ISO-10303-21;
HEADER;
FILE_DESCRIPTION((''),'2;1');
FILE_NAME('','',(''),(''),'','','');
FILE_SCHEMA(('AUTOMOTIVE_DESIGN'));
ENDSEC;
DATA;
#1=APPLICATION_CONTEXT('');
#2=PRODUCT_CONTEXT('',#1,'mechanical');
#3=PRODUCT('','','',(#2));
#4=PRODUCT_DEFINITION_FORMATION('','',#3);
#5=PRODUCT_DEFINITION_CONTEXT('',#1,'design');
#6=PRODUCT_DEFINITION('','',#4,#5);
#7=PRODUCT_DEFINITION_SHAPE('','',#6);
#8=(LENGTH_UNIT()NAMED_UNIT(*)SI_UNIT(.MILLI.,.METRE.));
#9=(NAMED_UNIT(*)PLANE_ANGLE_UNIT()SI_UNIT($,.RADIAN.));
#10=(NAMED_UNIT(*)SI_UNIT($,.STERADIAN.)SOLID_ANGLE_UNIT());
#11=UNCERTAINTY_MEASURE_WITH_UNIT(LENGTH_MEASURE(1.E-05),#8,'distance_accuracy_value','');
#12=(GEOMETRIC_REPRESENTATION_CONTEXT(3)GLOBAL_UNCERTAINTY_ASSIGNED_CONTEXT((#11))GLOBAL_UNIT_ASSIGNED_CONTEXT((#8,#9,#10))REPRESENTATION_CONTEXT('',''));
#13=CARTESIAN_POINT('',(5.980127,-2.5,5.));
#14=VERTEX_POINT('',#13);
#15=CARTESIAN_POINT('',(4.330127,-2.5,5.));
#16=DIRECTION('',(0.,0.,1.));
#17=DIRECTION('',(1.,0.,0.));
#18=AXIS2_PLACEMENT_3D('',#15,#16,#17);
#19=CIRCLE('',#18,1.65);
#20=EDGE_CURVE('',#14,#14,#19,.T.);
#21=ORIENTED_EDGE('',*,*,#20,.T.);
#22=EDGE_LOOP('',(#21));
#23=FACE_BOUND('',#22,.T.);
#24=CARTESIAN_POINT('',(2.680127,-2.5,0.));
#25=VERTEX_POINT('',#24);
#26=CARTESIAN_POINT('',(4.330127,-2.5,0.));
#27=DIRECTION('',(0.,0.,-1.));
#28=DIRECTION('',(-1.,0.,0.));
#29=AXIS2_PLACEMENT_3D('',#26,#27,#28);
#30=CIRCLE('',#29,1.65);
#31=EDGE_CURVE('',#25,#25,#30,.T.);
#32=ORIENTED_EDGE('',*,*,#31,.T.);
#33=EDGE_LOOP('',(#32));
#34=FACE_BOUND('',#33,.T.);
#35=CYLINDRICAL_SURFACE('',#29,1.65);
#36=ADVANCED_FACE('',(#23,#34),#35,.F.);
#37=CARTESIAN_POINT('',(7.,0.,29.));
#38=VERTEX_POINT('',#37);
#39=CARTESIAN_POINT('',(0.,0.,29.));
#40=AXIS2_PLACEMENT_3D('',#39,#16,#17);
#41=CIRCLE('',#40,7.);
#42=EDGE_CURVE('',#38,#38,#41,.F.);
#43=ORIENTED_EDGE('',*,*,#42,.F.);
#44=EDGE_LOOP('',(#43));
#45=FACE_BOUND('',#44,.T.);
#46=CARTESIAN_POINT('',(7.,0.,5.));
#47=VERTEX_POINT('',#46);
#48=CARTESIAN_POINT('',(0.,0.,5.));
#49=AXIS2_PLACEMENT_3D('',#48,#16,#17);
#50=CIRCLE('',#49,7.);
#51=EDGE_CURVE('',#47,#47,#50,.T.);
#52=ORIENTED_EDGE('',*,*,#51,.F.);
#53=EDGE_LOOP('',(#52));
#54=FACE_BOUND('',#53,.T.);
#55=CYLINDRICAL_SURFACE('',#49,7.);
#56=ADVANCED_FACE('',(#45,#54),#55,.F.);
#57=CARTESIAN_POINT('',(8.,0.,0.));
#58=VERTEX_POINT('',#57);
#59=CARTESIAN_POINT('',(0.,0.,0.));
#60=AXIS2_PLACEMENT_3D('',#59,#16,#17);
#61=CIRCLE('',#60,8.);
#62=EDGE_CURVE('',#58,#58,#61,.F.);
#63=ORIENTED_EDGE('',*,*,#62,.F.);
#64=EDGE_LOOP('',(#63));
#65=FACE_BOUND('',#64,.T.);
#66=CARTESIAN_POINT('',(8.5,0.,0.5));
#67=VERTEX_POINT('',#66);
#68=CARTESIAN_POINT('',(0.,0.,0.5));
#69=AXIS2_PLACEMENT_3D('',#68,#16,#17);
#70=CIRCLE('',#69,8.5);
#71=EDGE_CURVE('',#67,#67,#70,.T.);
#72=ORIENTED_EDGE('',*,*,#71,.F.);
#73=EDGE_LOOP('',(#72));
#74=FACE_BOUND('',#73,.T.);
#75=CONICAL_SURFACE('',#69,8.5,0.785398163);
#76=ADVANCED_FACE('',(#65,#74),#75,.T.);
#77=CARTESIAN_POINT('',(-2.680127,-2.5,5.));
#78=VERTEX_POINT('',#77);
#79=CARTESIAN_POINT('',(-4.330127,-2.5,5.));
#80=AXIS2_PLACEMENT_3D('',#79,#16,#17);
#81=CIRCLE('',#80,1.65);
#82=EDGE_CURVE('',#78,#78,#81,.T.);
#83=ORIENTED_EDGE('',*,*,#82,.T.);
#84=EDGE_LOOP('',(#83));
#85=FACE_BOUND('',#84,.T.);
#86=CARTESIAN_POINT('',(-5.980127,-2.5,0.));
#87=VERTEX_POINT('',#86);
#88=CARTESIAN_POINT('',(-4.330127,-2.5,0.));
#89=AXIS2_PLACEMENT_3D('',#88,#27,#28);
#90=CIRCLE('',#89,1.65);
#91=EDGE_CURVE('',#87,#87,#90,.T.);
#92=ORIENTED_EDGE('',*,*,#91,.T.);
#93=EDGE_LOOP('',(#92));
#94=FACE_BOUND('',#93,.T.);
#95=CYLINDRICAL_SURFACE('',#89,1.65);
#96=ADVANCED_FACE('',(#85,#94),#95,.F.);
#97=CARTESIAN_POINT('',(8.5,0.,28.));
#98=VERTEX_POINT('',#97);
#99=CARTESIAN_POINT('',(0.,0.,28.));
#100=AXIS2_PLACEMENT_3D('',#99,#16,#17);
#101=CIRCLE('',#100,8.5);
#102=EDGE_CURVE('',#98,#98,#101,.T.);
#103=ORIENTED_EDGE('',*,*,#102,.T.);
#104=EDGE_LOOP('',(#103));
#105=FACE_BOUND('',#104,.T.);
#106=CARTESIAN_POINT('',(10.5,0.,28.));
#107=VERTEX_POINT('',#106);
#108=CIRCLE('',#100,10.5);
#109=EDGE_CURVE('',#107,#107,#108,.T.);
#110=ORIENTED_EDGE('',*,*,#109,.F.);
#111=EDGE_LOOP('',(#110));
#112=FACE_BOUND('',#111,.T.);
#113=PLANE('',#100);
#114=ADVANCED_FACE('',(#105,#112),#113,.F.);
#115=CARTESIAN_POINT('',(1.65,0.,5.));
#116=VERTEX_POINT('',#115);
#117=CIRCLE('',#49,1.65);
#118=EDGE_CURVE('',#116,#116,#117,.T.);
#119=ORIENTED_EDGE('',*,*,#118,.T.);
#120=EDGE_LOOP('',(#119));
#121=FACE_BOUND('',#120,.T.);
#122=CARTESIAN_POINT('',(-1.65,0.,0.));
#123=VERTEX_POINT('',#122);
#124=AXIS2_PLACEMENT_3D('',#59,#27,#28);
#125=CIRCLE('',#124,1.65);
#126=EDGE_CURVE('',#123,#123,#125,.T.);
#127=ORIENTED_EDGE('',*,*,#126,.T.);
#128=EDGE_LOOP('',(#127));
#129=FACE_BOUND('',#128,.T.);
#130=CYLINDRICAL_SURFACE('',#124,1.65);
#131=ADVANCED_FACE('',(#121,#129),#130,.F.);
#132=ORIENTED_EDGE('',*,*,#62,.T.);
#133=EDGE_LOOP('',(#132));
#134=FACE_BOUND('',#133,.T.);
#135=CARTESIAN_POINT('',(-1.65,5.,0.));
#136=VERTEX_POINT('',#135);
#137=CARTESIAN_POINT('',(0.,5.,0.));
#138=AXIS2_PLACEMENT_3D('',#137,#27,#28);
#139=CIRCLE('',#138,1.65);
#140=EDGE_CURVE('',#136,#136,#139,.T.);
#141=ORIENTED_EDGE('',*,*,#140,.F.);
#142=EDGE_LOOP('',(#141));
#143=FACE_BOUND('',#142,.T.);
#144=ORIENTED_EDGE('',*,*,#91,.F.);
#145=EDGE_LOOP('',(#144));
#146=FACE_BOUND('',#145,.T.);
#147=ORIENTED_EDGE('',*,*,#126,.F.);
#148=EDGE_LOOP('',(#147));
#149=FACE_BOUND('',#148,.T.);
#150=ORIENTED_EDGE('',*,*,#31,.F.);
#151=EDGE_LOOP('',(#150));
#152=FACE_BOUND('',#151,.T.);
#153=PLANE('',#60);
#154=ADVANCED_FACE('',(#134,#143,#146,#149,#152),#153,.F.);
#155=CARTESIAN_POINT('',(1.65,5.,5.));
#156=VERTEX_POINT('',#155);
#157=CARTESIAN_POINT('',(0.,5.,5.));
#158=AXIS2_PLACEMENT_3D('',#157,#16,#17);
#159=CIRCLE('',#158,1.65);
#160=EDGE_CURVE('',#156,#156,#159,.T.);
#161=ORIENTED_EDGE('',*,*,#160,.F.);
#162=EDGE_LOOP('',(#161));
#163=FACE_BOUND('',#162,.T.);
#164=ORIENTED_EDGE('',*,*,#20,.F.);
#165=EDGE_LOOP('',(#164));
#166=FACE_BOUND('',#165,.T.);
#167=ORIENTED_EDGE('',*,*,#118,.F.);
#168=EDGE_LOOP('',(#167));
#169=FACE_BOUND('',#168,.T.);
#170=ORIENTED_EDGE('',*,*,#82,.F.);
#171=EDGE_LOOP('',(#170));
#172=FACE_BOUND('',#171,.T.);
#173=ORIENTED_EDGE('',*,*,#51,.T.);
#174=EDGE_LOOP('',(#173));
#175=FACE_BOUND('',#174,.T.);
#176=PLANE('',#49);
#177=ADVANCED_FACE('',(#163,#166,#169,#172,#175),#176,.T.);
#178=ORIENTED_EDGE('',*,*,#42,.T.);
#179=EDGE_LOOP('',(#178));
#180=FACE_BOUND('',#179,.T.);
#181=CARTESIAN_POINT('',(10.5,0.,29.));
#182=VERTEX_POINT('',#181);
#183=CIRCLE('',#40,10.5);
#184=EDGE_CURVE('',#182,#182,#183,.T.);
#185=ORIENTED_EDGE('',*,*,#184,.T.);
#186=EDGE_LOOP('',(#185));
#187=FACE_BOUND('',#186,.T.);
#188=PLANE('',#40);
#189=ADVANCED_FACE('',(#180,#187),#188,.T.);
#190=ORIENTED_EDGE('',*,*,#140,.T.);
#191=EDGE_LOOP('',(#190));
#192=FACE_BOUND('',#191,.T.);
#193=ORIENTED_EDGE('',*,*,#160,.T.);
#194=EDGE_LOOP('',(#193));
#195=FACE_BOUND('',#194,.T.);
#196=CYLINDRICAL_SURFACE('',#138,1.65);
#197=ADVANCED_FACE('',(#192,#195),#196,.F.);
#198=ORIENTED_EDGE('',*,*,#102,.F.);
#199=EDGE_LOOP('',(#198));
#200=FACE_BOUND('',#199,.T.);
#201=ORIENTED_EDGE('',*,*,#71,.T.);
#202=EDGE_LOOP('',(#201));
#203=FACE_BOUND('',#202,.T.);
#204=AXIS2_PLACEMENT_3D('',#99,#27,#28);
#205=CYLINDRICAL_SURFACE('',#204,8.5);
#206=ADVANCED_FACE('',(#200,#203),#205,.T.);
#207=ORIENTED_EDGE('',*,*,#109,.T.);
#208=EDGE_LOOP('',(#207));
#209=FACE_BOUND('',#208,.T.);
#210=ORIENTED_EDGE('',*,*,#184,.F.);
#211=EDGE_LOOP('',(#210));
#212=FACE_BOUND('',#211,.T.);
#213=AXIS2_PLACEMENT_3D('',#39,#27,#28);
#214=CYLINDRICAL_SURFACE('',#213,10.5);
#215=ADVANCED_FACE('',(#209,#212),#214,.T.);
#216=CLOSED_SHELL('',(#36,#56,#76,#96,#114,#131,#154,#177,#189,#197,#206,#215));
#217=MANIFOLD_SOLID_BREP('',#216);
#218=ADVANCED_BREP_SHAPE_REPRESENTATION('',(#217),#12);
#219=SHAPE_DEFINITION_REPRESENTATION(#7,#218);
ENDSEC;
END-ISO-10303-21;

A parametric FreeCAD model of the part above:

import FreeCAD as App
import Part
import Sketcher

V = App.Vector
Q = App.Units.Quantity


def edges_at(feature, points):
    """Names of the edges that pass closest to the given points."""
    edges = feature.Shape.Edges
    near = lambda p: min(range(len(edges)), key=lambda i: edges[i].distToShape(Part.Vertex(*p))[0])
    return sorted({f"Edge{near(p) + 1}" for p in points})

doc = App.newDocument("Part")
body = doc.addObject("PartDesign::Body", "Body")

sketch1 = body.newObject("Sketcher::SketchObject", "Sketch")
sketch1.AttachmentSupport = (doc.getObject("XY_Plane"), [""])
sketch1.MapMode = "FlatFace"
sketch1.addGeometry(Part.Circle(V(0, 0, 0), V(0, 0, 1), 8), False)
sketch1.addConstraint([
    Sketcher.Constraint("Coincident", 0, 3, -1, 1),
    Sketcher.Constraint("Diameter", 0, Q("17 mm")),
])
pad1 = body.newObject("PartDesign::Pad", "Pad")
pad1.Profile = sketch1
pad1.Length = 28

sketch2 = body.newObject("Sketcher::SketchObject", "Sketch001")
sketch2.AttachmentSupport = (doc.getObject("XY_Plane"), [""])
sketch2.MapMode = "FlatFace"
sketch2.AttachmentOffset = App.Placement(V(0, 0, 28), App.Rotation())
sketch2.addGeometry(Part.Circle(V(0, 0, 0), V(0, 0, 1), 7), False)
sketch2.addConstraint([
    Sketcher.Constraint("Coincident", 0, 3, -1, 1),
    Sketcher.Constraint("Diameter", 0, Q("14 mm")),
])
pocket1 = body.newObject("PartDesign::Pocket", "Pocket")
pocket1.Profile = sketch2
pocket1.Length = 23

sketch3 = body.newObject("Sketcher::SketchObject", "Sketch002")
sketch3.AttachmentSupport = (doc.getObject("XY_Plane"), [""])
sketch3.MapMode = "FlatFace"
sketch3.addGeometry([
    Part.Circle(V(0, 5, 0), V(0, 0, 1), 1.6),
    Part.Circle(V(0, 0, 0), V(0, 0, 1), 1.6),
    Part.Circle(V(4.3, -2.5, 0), V(0, 0, 1), 1.6),
    Part.Circle(V(-4.3, -2.5, 0), V(0, 0, 1), 1.6),
], False)
sketch3.addConstraint([
    Sketcher.Constraint("Coincident", 1, 3, -1, 1),
    Sketcher.Constraint("Equal", 0, 1),
    Sketcher.Constraint("Equal", 1, 2),
    Sketcher.Constraint("Equal", 2, 3),
    Sketcher.Constraint("Symmetric", 2, 3, 3, 3, -2),
    Sketcher.Constraint("PointOnObject", 0, 3, -2),
    Sketcher.Constraint("Diameter", 0, Q("3.3 mm")),
    Sketcher.Constraint("DistanceY", -1, 1, 0, 3, Q("5 mm")),
    Sketcher.Constraint("DistanceY", 2, 3, -1, 1, Q("2.5 mm")),
    Sketcher.Constraint("DistanceX", -1, 1, 2, 3, Q("4.330127 mm")),
])
doc.recompute()
hole = body.newObject("PartDesign::Hole", "Hole")
hole.Profile = sketch3
hole.ThreadType = "None"
hole.Diameter = 3.3
hole.DepthType = "ThroughAll"
hole.Reversed = True

sketch4 = body.newObject("Sketcher::SketchObject", "Sketch003")
sketch4.AttachmentSupport = (doc.getObject("XY_Plane"), [""])
sketch4.MapMode = "FlatFace"
sketch4.AttachmentOffset = App.Placement(V(0, 0, 28), App.Rotation())
sketch4.addGeometry([
    Part.Circle(V(0, 0, 0), V(0, 0, 1), 10),
    Part.Circle(V(0, 0, 0), V(0, 0, 1), 7),
], False)
sketch4.addConstraint([
    Sketcher.Constraint("Coincident", 0, 3, -1, 1),
    Sketcher.Constraint("Coincident", 1, 3, -1, 1),
    Sketcher.Constraint("Diameter", 0, Q("21 mm")),
    Sketcher.Constraint("Diameter", 1, Q("14 mm")),
])
pad2 = body.newObject("PartDesign::Pad", "Pad001")
pad2.Profile = sketch4
pad2.Length = 1
doc.recompute()

chamfer = body.newObject("PartDesign::Chamfer", "Chamfer")
chamfer.Base = (pad2, edges_at(pad2, [(-8.5, 0, 0)]))
chamfer.Size = 0.5

doc.recompute()
